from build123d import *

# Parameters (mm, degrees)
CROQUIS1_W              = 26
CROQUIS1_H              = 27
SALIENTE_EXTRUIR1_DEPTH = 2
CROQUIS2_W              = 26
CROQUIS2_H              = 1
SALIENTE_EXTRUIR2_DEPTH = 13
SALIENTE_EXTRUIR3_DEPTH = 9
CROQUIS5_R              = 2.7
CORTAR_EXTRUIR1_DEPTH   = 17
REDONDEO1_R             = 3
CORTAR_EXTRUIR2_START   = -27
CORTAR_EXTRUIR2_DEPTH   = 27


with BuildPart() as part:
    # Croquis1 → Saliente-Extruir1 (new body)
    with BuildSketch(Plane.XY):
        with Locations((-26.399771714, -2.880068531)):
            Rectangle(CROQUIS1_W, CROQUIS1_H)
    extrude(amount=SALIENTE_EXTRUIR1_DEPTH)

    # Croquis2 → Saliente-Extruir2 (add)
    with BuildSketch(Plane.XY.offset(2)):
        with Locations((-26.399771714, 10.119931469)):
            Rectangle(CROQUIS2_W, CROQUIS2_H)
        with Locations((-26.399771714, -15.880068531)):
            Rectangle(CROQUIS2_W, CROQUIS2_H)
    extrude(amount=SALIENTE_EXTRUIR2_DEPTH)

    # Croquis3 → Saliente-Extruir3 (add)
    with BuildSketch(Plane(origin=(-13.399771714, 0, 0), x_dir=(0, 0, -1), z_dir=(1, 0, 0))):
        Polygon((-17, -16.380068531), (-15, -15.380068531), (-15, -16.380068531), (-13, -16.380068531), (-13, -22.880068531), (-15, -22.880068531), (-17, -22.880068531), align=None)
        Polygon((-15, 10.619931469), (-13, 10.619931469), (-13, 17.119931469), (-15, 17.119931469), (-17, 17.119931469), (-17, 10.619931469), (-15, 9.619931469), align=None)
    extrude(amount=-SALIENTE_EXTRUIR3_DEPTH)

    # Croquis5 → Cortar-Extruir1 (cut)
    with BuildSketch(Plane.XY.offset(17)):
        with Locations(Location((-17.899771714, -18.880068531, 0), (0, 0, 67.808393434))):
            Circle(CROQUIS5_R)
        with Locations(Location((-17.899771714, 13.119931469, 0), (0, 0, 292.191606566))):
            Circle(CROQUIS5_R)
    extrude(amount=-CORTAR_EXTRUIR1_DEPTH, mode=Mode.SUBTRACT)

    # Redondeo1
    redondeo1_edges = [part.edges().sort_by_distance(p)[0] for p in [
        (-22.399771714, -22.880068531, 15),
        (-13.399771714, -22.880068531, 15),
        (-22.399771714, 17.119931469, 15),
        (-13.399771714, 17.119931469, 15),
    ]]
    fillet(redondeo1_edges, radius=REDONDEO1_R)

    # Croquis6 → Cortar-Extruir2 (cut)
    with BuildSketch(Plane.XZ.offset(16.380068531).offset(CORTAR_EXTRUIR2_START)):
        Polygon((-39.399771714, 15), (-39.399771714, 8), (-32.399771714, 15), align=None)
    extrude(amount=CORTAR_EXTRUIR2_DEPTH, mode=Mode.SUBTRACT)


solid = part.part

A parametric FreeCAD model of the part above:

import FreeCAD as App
import Part
import Sketcher

V = App.Vector


def edges_at(feature, points):
    """Names of the edges that pass closest to the given points."""
    edges = feature.Shape.Edges
    near = lambda p: min(range(len(edges)), key=lambda i: edges[i].distToShape(Part.Vertex(*p))[0])
    return sorted({f"Edge{near(p) + 1}" for p in points})

doc = App.newDocument("Part")
params = doc.addObject("Spreadsheet::Sheet", "Params")
for row, (alias, value) in enumerate([
    ("sketch1_width", "26 mm"),
    ("sketch1_height", "27 mm"),
    ("pad1_length", "2 mm"),
    ("sketch2_width", "26 mm"),
    ("sketch2_height", "1 mm"),
    ("pad2_length", "13 mm"),
    ("sketch3_width", "1 mm"),
    ("sketch3_height", "4 mm"),
    ("sketch3_height2", "2 mm"),
    ("sketch3_width2", "6.5 mm"),
    ("pad3_length", "9 mm"),
    ("sketch4_diameter", "5.4 mm"),
    ("pocket1_length", "17 mm"),
    ("fillet_radius", "3 mm"),
    ("sketch5_width", "7 mm"),
    ("pocket2_length", "27 mm"),
], start=1):
    params.set(f"A{row}", alias)
    params.set(f"B{row}", "=" + value)
    params.setAlias(f"B{row}", alias)

body = doc.addObject("PartDesign::Body", "Body")

sketch1 = doc.addObject("Sketcher::SketchObject", "Sketch")
body.addObject(sketch1)
sketch1.AttachmentSupport = (doc.XY_Plane, [""])
sketch1.MapMode = "FlatFace"
sketch1.addGeometry(Part.LineSegment(V(-39, 11, 0), V(-39, -16, 0)), False)
sketch1.addGeometry(Part.LineSegment(V(-39, -16, 0), V(-13, -16, 0)), False)
sketch1.addGeometry(Part.LineSegment(V(-13, -16, 0), V(-13, 11, 0)), False)
sketch1.addGeometry(Part.LineSegment(V(-13, 11, 0), V(-39, 11, 0)), False)
sketch1.addConstraint(Sketcher.Constraint("Coincident", 0, 2, 1, 1))
sketch1.addConstraint(Sketcher.Constraint("Coincident", 1, 2, 2, 1))
sketch1.addConstraint(Sketcher.Constraint("Coincident", 2, 2, 3, 1))
sketch1.addConstraint(Sketcher.Constraint("Coincident", 3, 2, 0, 1))
sketch1.addConstraint(Sketcher.Constraint("Vertical", 0))
sketch1.addConstraint(Sketcher.Constraint("Horizontal", 1))
sketch1.addConstraint(Sketcher.Constraint("Vertical", 2))
sketch1.addConstraint(Sketcher.Constraint("Horizontal", 3))
sketch1.addConstraint(Sketcher.Constraint("DistanceX", 1, 1, 1, 2, 26.0))
sketch1.addConstraint(Sketcher.Constraint("DistanceY", 0, 2, 0, 1, 27.0))
sketch1.addConstraint(Sketcher.Constraint("DistanceX", 0, 2, -1, 1, 39.399772))
sketch1.addConstraint(Sketcher.Constraint("DistanceY", 0, 2, -1, 1, 16.380069))
sketch1.setExpression("Constraints[8]", "Params.sketch1_width")
sketch1.setExpression("Constraints[9]", "Params.sketch1_height")
pad1 = doc.addObject("PartDesign::Pad", "Pad")
body.addObject(pad1)
pad1.Profile = sketch1
pad1.setExpression("Length", "Params.pad1_length")

sketch2 = doc.addObject("Sketcher::SketchObject", "Sketch001")
body.addObject(sketch2)
sketch2.AttachmentSupport = (doc.XY_Plane, [""])
sketch2.MapMode = "FlatFace"
sketch2.AttachmentOffset = App.Placement(V(0, 0, 2), App.Rotation())
sketch2.addGeometry(Part.LineSegment(V(-39.4, 10.6, 0), V(-39.4, 9.6, 0)), False)
sketch2.addGeometry(Part.LineSegment(V(-39.4, 9.6, 0), V(-13.4, 9.6, 0)), False)
sketch2.addGeometry(Part.LineSegment(V(-13.4, 9.6, 0), V(-13.4, 10.6, 0)), False)
sketch2.addGeometry(Part.LineSegment(V(-13.4, 10.6, 0), V(-39.4, 10.6, 0)), False)
sketch2.addGeometry(Part.LineSegment(V(-39.4, -15.4, 0), V(-39.4, -16.4, 0)), False)
sketch2.addGeometry(Part.LineSegment(V(-39.4, -16.4, 0), V(-13.4, -16.4, 0)), False)
sketch2.addGeometry(Part.LineSegment(V(-13.4, -16.4, 0), V(-13.4, -15.4, 0)), False)
sketch2.addGeometry(Part.LineSegment(V(-13.4, -15.4, 0), V(-39.4, -15.4, 0)), False)
sketch2.addConstraint(Sketcher.Constraint("Coincident", 0, 2, 1, 1))
sketch2.addConstraint(Sketcher.Constraint("Coincident", 1, 2, 2, 1))
sketch2.addConstraint(Sketcher.Constraint("Coincident", 2, 2, 3, 1))
sketch2.addConstraint(Sketcher.Constraint("Coincident", 3, 2, 0, 1))
sketch2.addConstraint(Sketcher.Constraint("Coincident", 4, 2, 5, 1))
sketch2.addConstraint(Sketcher.Constraint("Coincident", 5, 2, 6, 1))
sketch2.addConstraint(Sketcher.Constraint("Coincident", 6, 2, 7, 1))
sketch2.addConstraint(Sketcher.Constraint("Coincident", 7, 2, 4, 1))
sketch2.addConstraint(Sketcher.Constraint("Vertical", 0))
sketch2.addConstraint(Sketcher.Constraint("Horizontal", 1))
sketch2.addConstraint(Sketcher.Constraint("Vertical", 2))
sketch2.addConstraint(Sketcher.Constraint("Horizontal", 3))
sketch2.addConstraint(Sketcher.Constraint("Vertical", 4))
sketch2.addConstraint(Sketcher.Constraint("Horizontal", 5))
sketch2.addConstraint(Sketcher.Constraint("Vertical", 6))
sketch2.addConstraint(Sketcher.Constraint("Horizontal", 7))
sketch2.addConstraint(Sketcher.Constraint("Vertical", 3, 2, 4, 2))
sketch2.addConstraint(Sketcher.Constraint("Vertical", 2, 2, 5, 2))
sketch2.addConstraint(Sketcher.Constraint("Equal", 2, 4))
sketch2.addConstraint(Sketcher.Constraint("DistanceX", 1, 1, 1, 2, 26.0))
sketch2.addConstraint(Sketcher.Constraint("DistanceY", 0, 2, 0, 1, 1.0))
sketch2.addConstraint(Sketcher.Constraint("DistanceY", 4, 2, 0, 2, 26.0))
sketch2.addConstraint(Sketcher.Constraint("DistanceX", 0, 2, -1, 1, 39.399772))
sketch2.addConstraint(Sketcher.Constraint("DistanceY", -1, 1, 0, 2, 9.619931))
sketch2.setExpression("Constraints[19]", "Params.sketch2_width")
sketch2.setExpression("Constraints[20]", "Params.sketch2_height")
pad2 = doc.addObject("PartDesign::Pad", "Pad001")
body.addObject(pad2)
pad2.Profile = sketch2
pad2.setExpression("Length", "Params.pad2_length")

sketch3 = doc.addObject("Sketcher::SketchObject", "Sketch002")
body.addObject(sketch3)
sketch3.AttachmentSupport = (doc.YZ_Plane, [""])
sketch3.MapMode = "FlatFace"
sketch3.AttachmentOffset = App.Placement(V(0, 0, -13.399772), App.Rotation())
sketch3.addGeometry(Part.LineSegment(V(-15.4, 15, 0), V(-16.4, 17, 0)), False)
sketch3.addGeometry(Part.LineSegment(V(-16.4, 17, 0), V(-22.9, 17, 0)), False)
sketch3.addGeometry(Part.LineSegment(V(-22.9, 17, 0), V(-22.9, 13, 0)), False)
sketch3.addGeometry(Part.LineSegment(V(-22.9, 13, 0), V(-16.4, 13, 0)), False)
sketch3.addGeometry(Part.LineSegment(V(-16.4, 13, 0), V(-16.4, 15, 0)), False)
sketch3.addGeometry(Part.LineSegment(V(-16.4, 15, 0), V(-15.4, 15, 0)), False)
sketch3.addGeometry(Part.LineSegment(V(10.6, 15, 0), V(10.6, 13, 0)), False)
sketch3.addGeometry(Part.LineSegment(V(10.6, 13, 0), V(17.1, 13, 0)), False)
sketch3.addGeometry(Part.LineSegment(V(17.1, 13, 0), V(17.1, 17, 0)), False)
sketch3.addGeometry(Part.LineSegment(V(17.1, 17, 0), V(10.6, 17, 0)), False)
sketch3.addGeometry(Part.LineSegment(V(10.6, 17, 0), V(9.6, 15, 0)), False)
sketch3.addGeometry(Part.LineSegment(V(9.6, 15, 0), V(10.6, 15, 0)), False)
sketch3.addConstraint(Sketcher.Constraint("Coincident", 0, 2, 1, 1))
sketch3.addConstraint(Sketcher.Constraint("Coincident", 1, 2, 2, 1))
sketch3.addConstraint(Sketcher.Constraint("Coincident", 2, 2, 3, 1))
sketch3.addConstraint(Sketcher.Constraint("Coincident", 3, 2, 4, 1))
sketch3.addConstraint(Sketcher.Constraint("Coincident", 4, 2, 5, 1))
sketch3.addConstraint(Sketcher.Constraint("Coincident", 5, 2, 0, 1))
sketch3.addConstraint(Sketcher.Constraint("Coincident", 6, 2, 7, 1))
sketch3.addConstraint(Sketcher.Constraint("Coincident", 7, 2, 8, 1))
sketch3.addConstraint(Sketcher.Constraint("Coincident", 8, 2, 9, 1))
sketch3.addConstraint(Sketcher.Constraint("Coincident", 9, 2, 10, 1))
sketch3.addConstraint(Sketcher.Constraint("Coincident", 10, 2, 11, 1))
sketch3.addConstraint(Sketcher.Constraint("Coincident", 11, 2, 6, 1))
sketch3.addConstraint(Sketcher.Constraint("Horizontal", 1))
sketch3.addConstraint(Sketcher.Constraint("Vertical", 2))
sketch3.addConstraint(Sketcher.Constraint("Horizontal", 3))
sketch3.addConstraint(Sketcher.Constraint("Vertical", 4))
sketch3.addConstraint(Sketcher.Constraint("Horizontal", 5))
sketch3.addConstraint(Sketcher.Constraint("Vertical", 6))
sketch3.addConstraint(Sketcher.Constraint("Horizontal", 7))
sketch3.addConstraint(Sketcher.Constraint("Vertical", 8))
sketch3.addConstraint(Sketcher.Constraint("Horizontal", 9))
sketch3.addConstraint(Sketcher.Constraint("Horizontal", 11))
sketch3.addConstraint(Sketcher.Constraint("Horizontal", 3, 2, 6, 2))
sketch3.addConstraint(Sketcher.Constraint("Horizontal", 1, 2, 8, 2))
sketch3.addConstraint(Sketcher.Constraint("Horizontal", 5, 2, 10, 2))
sketch3.addConstraint(Sketcher.Constraint("Vertical", 0, 2, 3, 2))
sketch3.addConstraint(Sketcher.Constraint("Vertical", 6, 2, 9, 2))
sketch3.addConstraint(Sketcher.Constraint("Equal", 3, 7))
sketch3.addConstraint(Sketcher.Constraint("Equal", 5, 11))
sketch3.addConstraint(Sketcher.Constraint("DistanceX", 5, 1, 5, 2, 1.0))
sketch3.addConstraint(Sketcher.Constraint("DistanceY", 2, 2, 2, 1, 4.0))
sketch3.addConstraint(Sketcher.Constraint("DistanceY", 4, 1, 4, 2, 2.0))
sketch3.addConstraint(Sketcher.Constraint("DistanceX", 1, 2, 1, 1, 6.5))
sketch3.addConstraint(Sketcher.Constraint("DistanceY", -1, 1, 0, 2, 17.0))
sketch3.addConstraint(Sketcher.Constraint("DistanceX", 5, 2, 6, 2, 26.0))
sketch3.addConstraint(Sketcher.Constraint("DistanceX", 0, 2, -1, 1, 16.380069))
sketch3.setExpression("Constraints[29]", "Params.sketch3_width")
sketch3.setExpression("Constraints[30]", "Params.sketch3_height")
sketch3.setExpression("Constraints[31]", "Params.sketch3_height2")
sketch3.setExpression("Constraints[32]", "Params.sketch3_width2")
pad3 = doc.addObject("PartDesign::Pad", "Pad002")
body.addObject(pad3)
pad3.Profile = sketch3
pad3.setExpression("Length", "Params.pad3_length")
pad3.Reversed = True

sketch4 = doc.addObject("Sketcher::SketchObject", "Sketch003")
body.addObject(sketch4)
sketch4.AttachmentSupport = (doc.XY_Plane, [""])
sketch4.MapMode = "FlatFace"
sketch4.AttachmentOffset = App.Placement(V(0, 0, 17), App.Rotation())
sketch4.addGeometry(Part.Circle(V(-17.9, -18.9, 0), V(0, 0, 1), 2.7), False)
sketch4.addGeometry(Part.Circle(V(-17.9, 13.1, 0), V(0, 0, 1), 2.7), False)
sketch4.addConstraint(Sketcher.Constraint("Equal", 0, 1))
sketch4.addConstraint(Sketcher.Constraint("Vertical", 0, 3, 1, 3))
sketch4.addConstraint(Sketcher.Constraint("Diameter", 0, 5.4))
sketch4.addConstraint(Sketcher.Constraint("DistanceY", 0, 3, 1, 3, 32.0))
sketch4.addConstraint(Sketcher.Constraint("DistanceX", 0, 3, -1, 1, 17.899772))
sketch4.addConstraint(Sketcher.Constraint("DistanceY", 0, 3, -1, 1, 18.880069))
sketch4.setExpression("Constraints[2]", "Params.sketch4_diameter")
pocket1 = doc.addObject("PartDesign::Pocket", "Pocket")
body.addObject(pocket1)
pocket1.Profile = sketch4
pocket1.setExpression("Length", "Params.pocket1_length")
doc.recompute()

fillet = doc.addObject("PartDesign::Fillet", "Fillet")
body.addObject(fillet)
fillet.Base = (pocket1, edges_at(pocket1, [
    (-22.4, -22.88, 15),
    (-13.4, -22.88, 15),
    (-22.4, 17.12, 15),
    (-13.4, 17.12, 15),
]))
fillet.setExpression("Radius", "Params.fillet_radius")

sketch5 = doc.addObject("Sketcher::SketchObject", "Sketch004")
body.addObject(sketch5)
sketch5.AttachmentSupport = (doc.XZ_Plane, [""])
sketch5.MapMode = "FlatFace"
sketch5.AttachmentOffset = App.Placement(V(0, 0, -10.619931), App.Rotation())
sketch5.addGeometry(Part.LineSegment(V(-39, 15, 0), V(-39, 8, 0)), False)
sketch5.addGeometry(Part.LineSegment(V(-39, 8, 0), V(-32, 15, 0)), False)
sketch5.addGeometry(Part.LineSegment(V(-32, 15, 0), V(-39, 15, 0)), False)
sketch5.addConstraint(Sketcher.Constraint("Coincident", 0, 2, 1, 1))
sketch5.addConstraint(Sketcher.Constraint("Coincident", 1, 2, 2, 1))
sketch5.addConstraint(Sketcher.Constraint("Coincident", 2, 2, 0, 1))
sketch5.addConstraint(Sketcher.Constraint("Vertical", 0))
sketch5.addConstraint(Sketcher.Constraint("Horizontal", 2))
sketch5.addConstraint(Sketcher.Constraint("Equal", 2, 0))
sketch5.addConstraint(Sketcher.Constraint("DistanceX", 2, 2, 2, 1, 7.0))
sketch5.addConstraint(Sketcher.Constraint("DistanceY", -1, 1, 0, 2, 8.0))
sketch5.addConstraint(Sketcher.Constraint("DistanceX", 0, 2, -1, 1, 39.399772))
sketch5.setExpression("Constraints[6]", "Params.sketch5_width")
pocket2 = doc.addObject("PartDesign::Pocket", "Pocket001")
body.addObject(pocket2)
pocket2.Profile = sketch5
pocket2.setExpression("Length", "Params.pocket2_length")
pocket2.Reversed = True

doc.recompute()
